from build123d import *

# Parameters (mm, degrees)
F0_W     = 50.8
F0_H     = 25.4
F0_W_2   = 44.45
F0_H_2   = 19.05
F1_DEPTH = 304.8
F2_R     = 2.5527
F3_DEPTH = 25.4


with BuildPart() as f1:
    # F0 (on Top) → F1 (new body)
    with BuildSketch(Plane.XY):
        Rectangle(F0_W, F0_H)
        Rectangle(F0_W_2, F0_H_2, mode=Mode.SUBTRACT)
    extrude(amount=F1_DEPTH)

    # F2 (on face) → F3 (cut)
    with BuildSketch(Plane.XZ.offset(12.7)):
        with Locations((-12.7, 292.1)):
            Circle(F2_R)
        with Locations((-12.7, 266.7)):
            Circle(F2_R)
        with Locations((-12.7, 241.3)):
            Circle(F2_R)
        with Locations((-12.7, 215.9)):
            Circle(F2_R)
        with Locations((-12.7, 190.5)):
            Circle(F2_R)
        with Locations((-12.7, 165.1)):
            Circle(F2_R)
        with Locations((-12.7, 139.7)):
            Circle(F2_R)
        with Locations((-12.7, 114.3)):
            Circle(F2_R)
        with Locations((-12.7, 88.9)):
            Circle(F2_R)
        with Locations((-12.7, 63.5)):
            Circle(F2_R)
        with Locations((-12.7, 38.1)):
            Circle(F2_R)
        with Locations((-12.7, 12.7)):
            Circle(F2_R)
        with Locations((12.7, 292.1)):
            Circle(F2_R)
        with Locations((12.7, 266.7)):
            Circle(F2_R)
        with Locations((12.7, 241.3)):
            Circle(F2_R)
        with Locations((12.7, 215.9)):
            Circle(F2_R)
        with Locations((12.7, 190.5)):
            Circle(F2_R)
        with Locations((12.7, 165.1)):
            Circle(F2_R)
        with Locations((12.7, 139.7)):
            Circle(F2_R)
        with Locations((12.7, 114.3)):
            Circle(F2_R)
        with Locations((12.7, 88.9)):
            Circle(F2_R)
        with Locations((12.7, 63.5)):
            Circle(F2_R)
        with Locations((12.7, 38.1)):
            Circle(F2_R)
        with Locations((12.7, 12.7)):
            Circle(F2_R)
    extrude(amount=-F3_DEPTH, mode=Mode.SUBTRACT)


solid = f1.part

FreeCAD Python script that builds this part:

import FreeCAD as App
import Part
import Sketcher

V = App.Vector
Q = App.Units.Quantity


def add_polygon(sketch, points):
    """Adds a closed chain of lines whose ends are joined by coincident constraints."""
    first, n = sketch.GeometryCount, len(points)
    for a, b in zip(points, points[1:] + points[:1]):
        sketch.addGeometry(Part.LineSegment(App.Vector(*a, 0), App.Vector(*b, 0)), False)
    for i in range(n):
        sketch.addConstraint(Sketcher.Constraint("Coincident", first + i, 2, first + (i + 1) % n, 1))

doc = App.newDocument("Part")
body = doc.addObject("PartDesign::Body", "Body")

# Sketch on XY plane
sketch1 = body.newObject("Sketcher::SketchObject", "Sketch")
sketch1.AttachmentSupport = (doc.getObject("XY_Plane"), [""])
sketch1.MapMode = "FlatFace"
add_polygon(sketch1, [(-25, 13), (-25, -13), (25, -13), (25, 13)])  # lines 0-3
add_polygon(sketch1, [(22, -10), (-22, -10), (-22, 10), (22, 10)])  # lines 4-7
sketch1.addConstraint(Sketcher.Constraint("Vertical", 0))
sketch1.addConstraint(Sketcher.Constraint("Horizontal", 1))
sketch1.addConstraint(Sketcher.Constraint("Vertical", 2))
sketch1.addConstraint(Sketcher.Constraint("Horizontal", 3))
sketch1.addConstraint(Sketcher.Constraint("Horizontal", 4))
sketch1.addConstraint(Sketcher.Constraint("Vertical", 5))
sketch1.addConstraint(Sketcher.Constraint("Horizontal", 6))
sketch1.addConstraint(Sketcher.Constraint("Vertical", 7))
sketch1.addConstraint(Sketcher.Constraint("Symmetric", 0, 2, 2, 2, -1, 1))
sketch1.addConstraint(Sketcher.Constraint("Symmetric", 4, 2, 6, 2, -1, 1))
sketch1.addConstraint(Sketcher.Constraint("DistanceX", 1, 1, 1, 2, Q("2 in")))
sketch1.addConstraint(Sketcher.Constraint("DistanceY", 0, 2, 0, 1, Q("1 in")))
sketch1.addConstraint(Sketcher.Constraint("DistanceX", 4, 2, 4, 1, Q("1.75 in")))
sketch1.addConstraint(Sketcher.Constraint("DistanceY", 5, 1, 5, 2, Q("0.75 in")))
pad1 = body.newObject("PartDesign::Pad", "Pad")
pad1.Profile = sketch1
pad1.Length = Q("12 in")

# Sketch on XZ plane
sketch2 = body.newObject("Sketcher::SketchObject", "Sketch001")
sketch2.AttachmentSupport = (doc.getObject("XZ_Plane"), [""])
sketch2.MapMode = "FlatFace"
sketch2.AttachmentOffset = App.Placement(V(0, 0, 0.5 * 25.4), App.Rotation())
sketch2.addGeometry(Part.Circle(V(-12.7, 292.1, 0), V(0, 0, 1), 2.6), False)
sketch2.addGeometry(Part.Circle(V(-12.7, 266.7, 0), V(0, 0, 1), 2.6), False)
sketch2.addGeometry(Part.Circle(V(-12.7, 241.3, 0), V(0, 0, 1), 2.6), False)
sketch2.addGeometry(Part.Circle(V(-12.7, 215.9, 0), V(0, 0, 1), 2.6), False)
sketch2.addGeometry(Part.Circle(V(-12.7, 190.5, 0), V(0, 0, 1), 2.6), False)
sketch2.addGeometry(Part.Circle(V(-12.7, 165.1, 0), V(0, 0, 1), 2.6), False)
sketch2.addGeometry(Part.Circle(V(-12.7, 139.7, 0), V(0, 0, 1), 2.6), False)
sketch2.addGeometry(Part.Circle(V(-12.7, 114.3, 0), V(0, 0, 1), 2.6), False)
sketch2.addGeometry(Part.Circle(V(-12.7, 88.9, 0), V(0, 0, 1), 2.6), False)
sketch2.addGeometry(Part.Circle(V(-12.7, 63.5, 0), V(0, 0, 1), 2.6), False)
sketch2.addGeometry(Part.Circle(V(-12.7, 38.1, 0), V(0, 0, 1), 2.6), False)
sketch2.addGeometry(Part.Circle(V(-12.7, 12.7, 0), V(0, 0, 1), 2.6), False)
sketch2.addGeometry(Part.Circle(V(12.7, 292.1, 0), V(0, 0, 1), 2.6), False)
sketch2.addGeometry(Part.Circle(V(12.7, 266.7, 0), V(0, 0, 1), 2.6), False)
sketch2.addGeometry(Part.Circle(V(12.7, 241.3, 0), V(0, 0, 1), 2.6), False)
sketch2.addGeometry(Part.Circle(V(12.7, 215.9, 0), V(0, 0, 1), 2.6), False)
sketch2.addGeometry(Part.Circle(V(12.7, 190.5, 0), V(0, 0, 1), 2.6), False)
sketch2.addGeometry(Part.Circle(V(12.7, 165.1, 0), V(0, 0, 1), 2.6), False)
sketch2.addGeometry(Part.Circle(V(12.7, 139.7, 0), V(0, 0, 1), 2.6), False)
sketch2.addGeometry(Part.Circle(V(12.7, 114.3, 0), V(0, 0, 1), 2.6), False)
sketch2.addGeometry(Part.Circle(V(12.7, 88.9, 0), V(0, 0, 1), 2.6), False)
sketch2.addGeometry(Part.Circle(V(12.7, 63.5, 0), V(0, 0, 1), 2.6), False)
sketch2.addGeometry(Part.Circle(V(12.7, 38.1, 0), V(0, 0, 1), 2.6), False)
sketch2.addGeometry(Part.Circle(V(12.7, 12.7, 0), V(0, 0, 1), 2.6), False)
sketch2.addConstraint(Sketcher.Constraint("Equal", 0, 1))
sketch2.addConstraint(Sketcher.Constraint("Equal", 1, 2))
sketch2.addConstraint(Sketcher.Constraint("Equal", 2, 3))
sketch2.addConstraint(Sketcher.Constraint("Equal", 3, 4))
sketch2.addConstraint(Sketcher.Constraint("Equal", 4, 5))
sketch2.addConstraint(Sketcher.Constraint("Equal", 5, 6))
sketch2.addConstraint(Sketcher.Constraint("Equal", 6, 7))
sketch2.addConstraint(Sketcher.Constraint("Equal", 7, 8))
sketch2.addConstraint(Sketcher.Constraint("Equal", 8, 9))
sketch2.addConstraint(Sketcher.Constraint("Equal", 9, 10))
sketch2.addConstraint(Sketcher.Constraint("Equal", 10, 11))
sketch2.addConstraint(Sketcher.Constraint("Equal", 11, 12))
sketch2.addConstraint(Sketcher.Constraint("Equal", 12, 13))
sketch2.addConstraint(Sketcher.Constraint("Equal", 13, 14))
sketch2.addConstraint(Sketcher.Constraint("Equal", 14, 15))
sketch2.addConstraint(Sketcher.Constraint("Equal", 15, 16))
sketch2.addConstraint(Sketcher.Constraint("Equal", 16, 17))
sketch2.addConstraint(Sketcher.Constraint("Equal", 17, 18))
sketch2.addConstraint(Sketcher.Constraint("Equal", 18, 19))
sketch2.addConstraint(Sketcher.Constraint("Equal", 19, 20))
sketch2.addConstraint(Sketcher.Constraint("Equal", 20, 21))
sketch2.addConstraint(Sketcher.Constraint("Equal", 21, 22))
sketch2.addConstraint(Sketcher.Constraint("Equal", 22, 23))
sketch2.addConstraint(Sketcher.Constraint("Symmetric", 0, 3, 12, 3, -2))
sketch2.addConstraint(Sketcher.Constraint("Symmetric", 1, 3, 13, 3, -2))
sketch2.addConstraint(Sketcher.Constraint("Symmetric", 2, 3, 14, 3, -2))
sketch2.addConstraint(Sketcher.Constraint("Symmetric", 3, 3, 15, 3, -2))
sketch2.addConstraint(Sketcher.Constraint("Symmetric", 4, 3, 16, 3, -2))
sketch2.addConstraint(Sketcher.Constraint("Symmetric", 5, 3, 17, 3, -2))
sketch2.addConstraint(Sketcher.Constraint("Symmetric", 6, 3, 18, 3, -2))
sketch2.addConstraint(Sketcher.Constraint("Symmetric", 7, 3, 19, 3, -2))
sketch2.addConstraint(Sketcher.Constraint("Symmetric", 8, 3, 20, 3, -2))
sketch2.addConstraint(Sketcher.Constraint("Symmetric", 9, 3, 21, 3, -2))
sketch2.addConstraint(Sketcher.Constraint("Symmetric", 10, 3, 22, 3, -2))
sketch2.addConstraint(Sketcher.Constraint("Symmetric", 11, 3, 23, 3, -2))
sketch2.addConstraint(Sketcher.Constraint("Vertical", 0, 3, 1, 3))
sketch2.addConstraint(Sketcher.Constraint("Vertical", 1, 3, 2, 3))
sketch2.addConstraint(Sketcher.Constraint("Vertical", 2, 3, 3, 3))
sketch2.addConstraint(Sketcher.Constraint("Vertical", 3, 3, 4, 3))
sketch2.addConstraint(Sketcher.Constraint("Vertical", 4, 3, 5, 3))
sketch2.addConstraint(Sketcher.Constraint("Vertical", 5, 3, 6, 3))
sketch2.addConstraint(Sketcher.Constraint("Vertical", 6, 3, 7, 3))
sketch2.addConstraint(Sketcher.Constraint("Vertical", 7, 3, 8, 3))
sketch2.addConstraint(Sketcher.Constraint("Vertical", 8, 3, 9, 3))
sketch2.addConstraint(Sketcher.Constraint("Vertical", 9, 3, 10, 3))
sketch2.addConstraint(Sketcher.Constraint("Vertical", 10, 3, 11, 3))
sketch2.addConstraint(Sketcher.Constraint("Diameter", 0, Q("0.201 in")))
sketch2.addConstraint(Sketcher.Constraint("DistanceY", 1, 3, 0, 3, Q("1 in")))
sketch2.addConstraint(Sketcher.Constraint("DistanceY", 2, 3, 1, 3, Q("1 in")))
sketch2.addConstraint(Sketcher.Constraint("DistanceY", 3, 3, 2, 3, Q("1 in")))
sketch2.addConstraint(Sketcher.Constraint("DistanceY", 4, 3, 3, 3, Q("1 in")))
sketch2.addConstraint(Sketcher.Constraint("DistanceY", 5, 3, 4, 3, Q("1 in")))
sketch2.addConstraint(Sketcher.Constraint("DistanceY", 6, 3, 5, 3, Q("1 in")))
sketch2.addConstraint(Sketcher.Constraint("DistanceY", 7, 3, 6, 3, Q("1 in")))
sketch2.addConstraint(Sketcher.Constraint("DistanceY", 8, 3, 7, 3, Q("1 in")))
sketch2.addConstraint(Sketcher.Constraint("DistanceY", 9, 3, 8, 3, Q("1 in")))
sketch2.addConstraint(Sketcher.Constraint("DistanceY", 10, 3, 9, 3, Q("1 in")))
sketch2.addConstraint(Sketcher.Constraint("DistanceY", 11, 3, 10, 3, Q("1 in")))
sketch2.addConstraint(Sketcher.Constraint("DistanceX", 0, 3, 12, 3, Q("1 in")))
sketch2.addConstraint(Sketcher.Constraint("DistanceY", -1, 1, 0, 3, Q("11.5 in")))
pocket1 = body.newObject("PartDesign::Pocket", "Pocket")
pocket1.Profile = sketch2
pocket1.Length = Q("1 in")

doc.recompute()
